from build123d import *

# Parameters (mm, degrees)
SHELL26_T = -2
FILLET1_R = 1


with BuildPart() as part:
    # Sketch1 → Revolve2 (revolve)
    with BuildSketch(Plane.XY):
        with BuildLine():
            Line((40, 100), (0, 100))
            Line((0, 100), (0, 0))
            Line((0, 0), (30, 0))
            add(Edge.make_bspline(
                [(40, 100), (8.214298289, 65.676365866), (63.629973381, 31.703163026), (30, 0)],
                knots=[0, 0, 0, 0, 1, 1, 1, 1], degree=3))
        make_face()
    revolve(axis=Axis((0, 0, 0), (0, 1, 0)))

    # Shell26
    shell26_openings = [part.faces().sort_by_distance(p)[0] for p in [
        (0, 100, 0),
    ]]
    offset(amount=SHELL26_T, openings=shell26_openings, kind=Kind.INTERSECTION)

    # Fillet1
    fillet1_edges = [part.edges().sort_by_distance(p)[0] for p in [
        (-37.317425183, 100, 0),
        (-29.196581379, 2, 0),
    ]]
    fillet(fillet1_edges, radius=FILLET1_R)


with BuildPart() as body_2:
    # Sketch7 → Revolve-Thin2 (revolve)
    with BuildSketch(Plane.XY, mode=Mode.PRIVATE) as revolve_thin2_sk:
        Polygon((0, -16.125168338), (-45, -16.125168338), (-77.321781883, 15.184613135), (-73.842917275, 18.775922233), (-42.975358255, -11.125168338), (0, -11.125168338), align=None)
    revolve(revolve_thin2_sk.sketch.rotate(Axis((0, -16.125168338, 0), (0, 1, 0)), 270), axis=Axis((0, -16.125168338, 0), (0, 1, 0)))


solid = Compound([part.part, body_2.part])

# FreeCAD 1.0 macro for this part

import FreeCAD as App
import Part
import Sketcher
Q = App.Units.Quantity


def edges_at(feature, points):
    """Names of the edges that pass closest to the given points."""
    edges = feature.Shape.Edges
    near = lambda p: min(range(len(edges)), key=lambda i: edges[i].distToShape(Part.Vertex(*p))[0])
    return sorted({f"Edge{near(p) + 1}" for p in points})


def faces_at(feature, points):
    """Names of the faces that lie closest to the given points."""
    faces = feature.Shape.Faces
    near = lambda p: min(range(len(faces)), key=lambda i: faces[i].distToShape(Part.Vertex(*p))[0])
    return sorted({f"Face{near(p) + 1}" for p in points})

doc = App.newDocument("Part")
body = doc.addObject("PartDesign::Body", "Body")

sketch1 = doc.addObject("Sketcher::SketchObject", "Sketch")
body.addObject(sketch1)
sketch1.AttachmentSupport = (doc.XY_Plane, [""])
sketch1.MapMode = "FlatFace"
sketch1.addGeometry([
    Part.LineSegment(App.Vector(40, 100, 0), App.Vector(0, 100, 0)),
    Part.LineSegment(App.Vector(0, 100, 0), App.Vector(0, 0, 0)),
    Part.LineSegment(App.Vector(0, 0, 0), App.Vector(30, 0, 0)),
    Part.BSplineCurve([App.Vector(40, 100, 0), App.Vector(8.214298, 65.676366, 0), App.Vector(63.629973, 31.703163, 0), App.Vector(30, 0, 0)], [4, 4], [0, 1], False, 3, [1, 1, 1, 1], False),
], False)
sketch1.addConstraint([
    Sketcher.Constraint("Block", 3),
    Sketcher.Constraint("Coincident", 0, 2, 1, 1),
    Sketcher.Constraint("Coincident", 1, 2, 2, 1),
    Sketcher.Constraint("Coincident", 2, 2, 3, 2),
    Sketcher.Constraint("Coincident", 3, 1, 0, 1),
    Sketcher.Constraint("Horizontal", 0),
    Sketcher.Constraint("Vertical", 1),
    Sketcher.Constraint("Horizontal", 2),
    Sketcher.Constraint("PointOnObject", 0, 2, -2),
])
revolution = doc.addObject("PartDesign::Revolution", "Revolution")
body.addObject(revolution)
revolution.Profile = sketch1
revolution.ReferenceAxis = (sketch1, ["V_Axis"])
revolution.Angle = 360
doc.recompute()

thickness = doc.addObject("PartDesign::Thickness", "Thickness")
body.addObject(thickness)
thickness.Base = (revolution, faces_at(revolution, [(0, 100, 0)]))
thickness.Value = 2
thickness.Reversed = True
thickness.Join = "Intersection"
doc.recompute()

fillet = doc.addObject("PartDesign::Fillet", "Fillet")
body.addObject(fillet)
fillet.Base = (thickness, edges_at(thickness, [(-37.317, 100, 0), (-29.197, 2, 0)]))
fillet.Radius = 1
body2 = doc.addObject("PartDesign::Body", "Body001")

sketch2 = doc.addObject("Sketcher::SketchObject", "Sketch001")
body2.addObject(sketch2)
sketch2.AttachmentSupport = (doc.getObject("XY_Plane001"), [""])
sketch2.MapMode = "FlatFace"
sketch2.addGeometry([
    Part.LineSegment(App.Vector(-45, -16.125168, 0), App.Vector(0, -16.125168, 0)),
    Part.LineSegment(App.Vector(0, -16.125168, 0), App.Vector(0, -11.125168, 0)),
    Part.LineSegment(App.Vector(0, -11.125168, 0), App.Vector(-42.975358, -11.125168, 0)),
    Part.LineSegment(App.Vector(-42.975358, -11.125168, 0), App.Vector(-73.842917, 18.775922, 0)),
    Part.LineSegment(App.Vector(-73.842917, 18.775922, 0), App.Vector(-77.321782, 15.184613, 0)),
    Part.LineSegment(App.Vector(-77.321782, 15.184613, 0), App.Vector(-45, -16.125168, 0)),
], False)
sketch2.addConstraint([
    Sketcher.Constraint("Coincident", 0, 2, 1, 1),
    Sketcher.Constraint("Coincident", 1, 2, 2, 1),
    Sketcher.Constraint("Coincident", 2, 2, 3, 1),
    Sketcher.Constraint("Coincident", 3, 2, 4, 1),
    Sketcher.Constraint("Coincident", 4, 2, 5, 1),
    Sketcher.Constraint("Coincident", 5, 2, 0, 1),
    Sketcher.Constraint("Horizontal", 0),
    Sketcher.Constraint("Vertical", 1),
    Sketcher.Constraint("Horizontal", 2),
    Sketcher.Constraint("PointOnObject", 0, 2, -2),
    Sketcher.Constraint("Perpendicular", 3, 4),
    Sketcher.Constraint("Perpendicular", 4, 5),
    Sketcher.Constraint("DistanceX", 0, 1, 0, 2, Q("45 mm")),
    Sketcher.Constraint("DistanceY", 1, 1, 1, 2, Q("5 mm")),
    Sketcher.Constraint("Distance", 4, Q("5 mm")),
    Sketcher.Constraint("Distance", 5, Q("45 mm")),
    Sketcher.Constraint("DistanceX", 2, 2, 2, 1, Q("42.975358 mm")),
    Sketcher.Constraint("DistanceY", 0, 2, -1, 1, Q("16.125168 mm")),
])
revolution2 = doc.addObject("PartDesign::Revolution", "Revolution001")
body2.addObject(revolution2)
revolution2.Profile = sketch2
revolution2.ReferenceAxis = (sketch2, ["V_Axis"])
revolution2.Angle = 360

doc.recompute()
